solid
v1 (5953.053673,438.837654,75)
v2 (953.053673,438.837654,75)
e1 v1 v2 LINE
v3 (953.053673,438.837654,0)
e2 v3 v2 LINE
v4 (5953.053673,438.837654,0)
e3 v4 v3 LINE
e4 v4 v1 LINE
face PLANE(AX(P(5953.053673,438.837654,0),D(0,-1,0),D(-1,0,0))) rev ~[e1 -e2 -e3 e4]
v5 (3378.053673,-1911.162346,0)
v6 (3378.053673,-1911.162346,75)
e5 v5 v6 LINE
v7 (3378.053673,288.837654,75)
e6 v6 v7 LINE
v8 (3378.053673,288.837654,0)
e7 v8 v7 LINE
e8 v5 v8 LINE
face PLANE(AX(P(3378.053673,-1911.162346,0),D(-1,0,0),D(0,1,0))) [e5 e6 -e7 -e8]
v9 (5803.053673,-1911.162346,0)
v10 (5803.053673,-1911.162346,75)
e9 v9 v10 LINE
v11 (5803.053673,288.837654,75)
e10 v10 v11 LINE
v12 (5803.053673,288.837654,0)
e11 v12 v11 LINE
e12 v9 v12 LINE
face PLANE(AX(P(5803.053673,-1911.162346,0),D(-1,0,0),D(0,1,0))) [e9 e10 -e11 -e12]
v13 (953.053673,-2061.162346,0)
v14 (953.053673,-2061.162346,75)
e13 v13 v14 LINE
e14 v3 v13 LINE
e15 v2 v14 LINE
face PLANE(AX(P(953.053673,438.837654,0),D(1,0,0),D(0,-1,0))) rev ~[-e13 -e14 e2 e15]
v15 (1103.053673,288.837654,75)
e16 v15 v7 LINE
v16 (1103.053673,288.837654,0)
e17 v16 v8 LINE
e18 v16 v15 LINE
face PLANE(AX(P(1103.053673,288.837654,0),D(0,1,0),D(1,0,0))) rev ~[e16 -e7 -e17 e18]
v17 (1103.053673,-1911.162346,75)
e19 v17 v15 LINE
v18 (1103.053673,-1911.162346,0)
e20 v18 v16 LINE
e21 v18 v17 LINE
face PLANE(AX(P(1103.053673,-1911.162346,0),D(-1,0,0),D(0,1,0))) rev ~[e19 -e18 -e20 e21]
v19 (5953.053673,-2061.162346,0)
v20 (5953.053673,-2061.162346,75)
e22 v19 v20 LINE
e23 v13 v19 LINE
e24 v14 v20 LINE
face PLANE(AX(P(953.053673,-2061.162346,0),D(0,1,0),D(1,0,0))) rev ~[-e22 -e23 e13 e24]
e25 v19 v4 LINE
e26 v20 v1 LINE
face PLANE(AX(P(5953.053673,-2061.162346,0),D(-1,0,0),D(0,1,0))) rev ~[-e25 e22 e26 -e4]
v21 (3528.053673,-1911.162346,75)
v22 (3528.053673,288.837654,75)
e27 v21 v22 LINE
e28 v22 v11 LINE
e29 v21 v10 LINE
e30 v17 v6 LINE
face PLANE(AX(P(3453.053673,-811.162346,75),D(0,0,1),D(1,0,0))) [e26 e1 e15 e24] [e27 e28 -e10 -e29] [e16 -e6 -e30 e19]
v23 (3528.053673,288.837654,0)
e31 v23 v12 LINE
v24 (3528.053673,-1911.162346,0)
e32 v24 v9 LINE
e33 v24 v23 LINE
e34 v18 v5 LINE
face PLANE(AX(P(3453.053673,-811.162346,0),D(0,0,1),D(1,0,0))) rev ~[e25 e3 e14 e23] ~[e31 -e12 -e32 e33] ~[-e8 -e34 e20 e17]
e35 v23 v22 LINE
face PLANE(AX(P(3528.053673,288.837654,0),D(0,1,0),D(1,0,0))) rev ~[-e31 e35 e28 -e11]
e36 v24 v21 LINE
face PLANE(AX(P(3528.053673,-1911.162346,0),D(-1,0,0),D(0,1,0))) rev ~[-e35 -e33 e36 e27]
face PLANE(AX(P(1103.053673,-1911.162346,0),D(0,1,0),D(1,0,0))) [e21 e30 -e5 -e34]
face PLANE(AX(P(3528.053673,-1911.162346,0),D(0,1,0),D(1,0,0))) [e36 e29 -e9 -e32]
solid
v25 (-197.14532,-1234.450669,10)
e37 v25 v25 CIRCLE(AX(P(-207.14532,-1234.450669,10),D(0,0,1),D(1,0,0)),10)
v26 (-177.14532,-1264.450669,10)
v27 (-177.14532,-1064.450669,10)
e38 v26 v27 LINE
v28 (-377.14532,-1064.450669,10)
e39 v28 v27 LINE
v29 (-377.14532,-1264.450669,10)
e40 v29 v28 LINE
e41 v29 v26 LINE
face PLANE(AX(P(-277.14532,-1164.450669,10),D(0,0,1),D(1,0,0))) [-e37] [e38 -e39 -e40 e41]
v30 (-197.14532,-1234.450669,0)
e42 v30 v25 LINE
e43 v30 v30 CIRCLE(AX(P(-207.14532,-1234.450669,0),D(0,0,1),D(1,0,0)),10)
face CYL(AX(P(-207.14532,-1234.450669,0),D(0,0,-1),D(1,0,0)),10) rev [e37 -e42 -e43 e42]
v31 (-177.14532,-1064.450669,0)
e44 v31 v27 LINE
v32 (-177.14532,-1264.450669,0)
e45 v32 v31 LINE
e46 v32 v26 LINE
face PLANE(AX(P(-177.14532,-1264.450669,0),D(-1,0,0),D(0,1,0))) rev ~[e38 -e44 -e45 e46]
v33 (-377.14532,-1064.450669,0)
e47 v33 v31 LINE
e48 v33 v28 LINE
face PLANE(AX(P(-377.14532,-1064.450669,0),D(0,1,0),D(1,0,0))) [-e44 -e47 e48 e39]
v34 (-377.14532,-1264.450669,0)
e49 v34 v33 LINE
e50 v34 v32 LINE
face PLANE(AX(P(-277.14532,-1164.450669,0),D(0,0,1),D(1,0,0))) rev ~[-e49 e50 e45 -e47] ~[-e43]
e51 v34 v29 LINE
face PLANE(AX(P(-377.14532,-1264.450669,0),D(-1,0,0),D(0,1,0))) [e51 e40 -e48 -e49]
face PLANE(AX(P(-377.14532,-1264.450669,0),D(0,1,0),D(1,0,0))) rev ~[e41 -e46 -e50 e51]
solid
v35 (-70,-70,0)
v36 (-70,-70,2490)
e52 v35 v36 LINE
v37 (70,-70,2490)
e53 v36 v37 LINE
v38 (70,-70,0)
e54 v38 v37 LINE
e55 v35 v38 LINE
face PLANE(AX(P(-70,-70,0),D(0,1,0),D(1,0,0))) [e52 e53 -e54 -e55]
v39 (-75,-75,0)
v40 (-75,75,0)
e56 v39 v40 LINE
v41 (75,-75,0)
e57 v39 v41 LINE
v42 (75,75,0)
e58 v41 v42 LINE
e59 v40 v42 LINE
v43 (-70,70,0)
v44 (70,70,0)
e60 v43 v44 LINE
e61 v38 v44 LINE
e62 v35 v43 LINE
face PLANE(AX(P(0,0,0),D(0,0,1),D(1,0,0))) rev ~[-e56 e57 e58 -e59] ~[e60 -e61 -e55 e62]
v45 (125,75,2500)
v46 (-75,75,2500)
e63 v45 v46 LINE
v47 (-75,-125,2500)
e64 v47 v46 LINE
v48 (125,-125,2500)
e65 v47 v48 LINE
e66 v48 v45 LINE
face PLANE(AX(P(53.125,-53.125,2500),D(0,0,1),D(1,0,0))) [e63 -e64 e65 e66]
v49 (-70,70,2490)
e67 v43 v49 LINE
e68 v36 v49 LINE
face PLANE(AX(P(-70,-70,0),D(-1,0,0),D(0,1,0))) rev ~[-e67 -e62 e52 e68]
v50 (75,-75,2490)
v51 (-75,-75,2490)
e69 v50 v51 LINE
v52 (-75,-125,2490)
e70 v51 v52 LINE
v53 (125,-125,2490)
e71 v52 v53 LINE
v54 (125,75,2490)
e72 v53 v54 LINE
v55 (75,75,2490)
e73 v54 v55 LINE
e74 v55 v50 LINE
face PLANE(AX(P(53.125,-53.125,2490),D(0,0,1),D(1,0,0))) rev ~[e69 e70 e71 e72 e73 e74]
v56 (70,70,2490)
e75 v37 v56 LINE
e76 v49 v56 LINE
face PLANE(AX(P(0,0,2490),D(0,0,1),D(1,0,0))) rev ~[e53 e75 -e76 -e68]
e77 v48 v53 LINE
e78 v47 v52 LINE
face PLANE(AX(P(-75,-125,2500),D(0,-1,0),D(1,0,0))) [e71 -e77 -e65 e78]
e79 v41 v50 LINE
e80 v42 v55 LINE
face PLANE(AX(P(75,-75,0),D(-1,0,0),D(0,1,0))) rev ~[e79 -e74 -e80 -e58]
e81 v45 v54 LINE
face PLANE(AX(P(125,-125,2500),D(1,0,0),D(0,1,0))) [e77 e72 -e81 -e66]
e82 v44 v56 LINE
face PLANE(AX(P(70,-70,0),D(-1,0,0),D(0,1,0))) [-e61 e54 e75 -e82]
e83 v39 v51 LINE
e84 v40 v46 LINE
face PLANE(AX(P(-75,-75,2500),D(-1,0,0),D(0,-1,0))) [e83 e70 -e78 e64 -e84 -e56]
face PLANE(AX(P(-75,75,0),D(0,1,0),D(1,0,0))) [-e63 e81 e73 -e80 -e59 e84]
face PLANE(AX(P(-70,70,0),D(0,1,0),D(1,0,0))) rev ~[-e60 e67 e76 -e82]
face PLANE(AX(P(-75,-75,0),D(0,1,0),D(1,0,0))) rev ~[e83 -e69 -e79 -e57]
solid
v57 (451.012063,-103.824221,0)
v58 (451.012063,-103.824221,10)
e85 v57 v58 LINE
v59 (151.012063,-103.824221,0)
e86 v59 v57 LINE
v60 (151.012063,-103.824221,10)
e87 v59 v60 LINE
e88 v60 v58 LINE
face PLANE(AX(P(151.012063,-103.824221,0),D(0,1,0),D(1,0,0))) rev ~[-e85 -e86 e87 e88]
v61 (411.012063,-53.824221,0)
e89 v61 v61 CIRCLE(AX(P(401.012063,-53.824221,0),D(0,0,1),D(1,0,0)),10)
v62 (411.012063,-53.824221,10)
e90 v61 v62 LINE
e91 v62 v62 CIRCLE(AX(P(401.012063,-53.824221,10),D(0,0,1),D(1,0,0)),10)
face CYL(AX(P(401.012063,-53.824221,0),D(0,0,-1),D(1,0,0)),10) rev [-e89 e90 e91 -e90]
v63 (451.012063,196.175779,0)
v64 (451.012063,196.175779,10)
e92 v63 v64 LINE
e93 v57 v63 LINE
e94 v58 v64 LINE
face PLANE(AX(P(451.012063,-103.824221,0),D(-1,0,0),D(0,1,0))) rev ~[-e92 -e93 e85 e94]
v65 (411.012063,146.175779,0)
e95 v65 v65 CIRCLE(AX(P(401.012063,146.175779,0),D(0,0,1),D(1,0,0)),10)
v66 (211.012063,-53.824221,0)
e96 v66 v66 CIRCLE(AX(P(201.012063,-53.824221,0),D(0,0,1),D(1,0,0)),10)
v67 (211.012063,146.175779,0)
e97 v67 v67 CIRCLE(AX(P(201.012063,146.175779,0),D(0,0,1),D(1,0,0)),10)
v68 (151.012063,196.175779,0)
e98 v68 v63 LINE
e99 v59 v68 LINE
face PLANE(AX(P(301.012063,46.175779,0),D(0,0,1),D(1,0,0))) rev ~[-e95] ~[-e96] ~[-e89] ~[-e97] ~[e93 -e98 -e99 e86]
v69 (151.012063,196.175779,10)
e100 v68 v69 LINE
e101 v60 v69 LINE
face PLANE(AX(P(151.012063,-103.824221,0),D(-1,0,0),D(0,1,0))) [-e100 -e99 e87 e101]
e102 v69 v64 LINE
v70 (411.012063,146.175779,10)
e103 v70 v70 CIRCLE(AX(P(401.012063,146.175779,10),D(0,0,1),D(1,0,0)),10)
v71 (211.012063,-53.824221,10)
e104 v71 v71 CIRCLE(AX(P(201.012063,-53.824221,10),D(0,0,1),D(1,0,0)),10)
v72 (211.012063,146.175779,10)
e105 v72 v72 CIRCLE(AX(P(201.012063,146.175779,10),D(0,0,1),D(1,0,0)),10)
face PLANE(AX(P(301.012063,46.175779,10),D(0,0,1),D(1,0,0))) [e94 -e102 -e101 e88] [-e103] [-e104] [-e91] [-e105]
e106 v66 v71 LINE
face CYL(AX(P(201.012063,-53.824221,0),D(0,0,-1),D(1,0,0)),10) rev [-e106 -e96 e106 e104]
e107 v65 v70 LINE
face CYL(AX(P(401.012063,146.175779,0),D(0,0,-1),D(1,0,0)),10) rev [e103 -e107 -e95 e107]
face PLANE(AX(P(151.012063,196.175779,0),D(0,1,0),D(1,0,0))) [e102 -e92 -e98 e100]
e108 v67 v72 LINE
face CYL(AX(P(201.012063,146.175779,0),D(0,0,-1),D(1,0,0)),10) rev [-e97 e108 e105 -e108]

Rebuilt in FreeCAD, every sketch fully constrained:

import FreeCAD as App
import Part
import Sketcher
from FreeCAD import Vector


def add_polygon(sketch, points):
    """Adds a closed chain of lines whose ends are joined by coincident constraints."""
    first, n = sketch.GeometryCount, len(points)
    for a, b in zip(points, points[1:] + points[:1]):
        sketch.addGeometry(Part.LineSegment(App.Vector(*a, 0), App.Vector(*b, 0)), False)
    for i in range(n):
        sketch.addConstraint(Sketcher.Constraint("Coincident", first + i, 2, first + (i + 1) % n, 1))

doc = App.newDocument("Part")
body = doc.addObject("PartDesign::Body", "Body")

sketch1 = body.newObject("Sketcher::SketchObject", "Sketch")
sketch1.AttachmentSupport = (doc.getObject("XY_Plane"), [""])
sketch1.MapMode = "FlatFace"
add_polygon(sketch1, [(-75, 75), (-75, -75), (75, -75), (75, 75)])
add_polygon(sketch1, [(70, -70), (-70, -70), (-70, 70), (70, 70)])
sketch1.addConstraint([
    Sketcher.Constraint("Vertical", 0),
    Sketcher.Constraint("Horizontal", 1),
    Sketcher.Constraint("Vertical", 2),
    Sketcher.Constraint("Horizontal", 3),
    Sketcher.Constraint("Horizontal", 4),
    Sketcher.Constraint("Vertical", 5),
    Sketcher.Constraint("Horizontal", 6),
    Sketcher.Constraint("Vertical", 7),
    Sketcher.Constraint("Symmetric", 0, 2, 2, 2, -1, 1),
    Sketcher.Constraint("Symmetric", 4, 2, 6, 2, -1, 1),
    Sketcher.Constraint("Equal", 3, 0),
    Sketcher.Constraint("Equal", 6, 5),
    Sketcher.Constraint("DistanceX", 1, 1, 1, 2, 150.0),
    Sketcher.Constraint("DistanceX", 4, 2, 4, 1, 140.0),
])
pad1 = body.newObject("PartDesign::Pad", "Pad")
pad1.Profile = sketch1
pad1.Length = 2500

sketch2 = body.newObject("Sketcher::SketchObject", "Sketch001")
sketch2.AttachmentSupport = (doc.getObject("XY_Plane"), [""])
sketch2.MapMode = "FlatFace"
sketch2.AttachmentOffset = App.Placement(Vector(0, 0, 2500), App.Rotation())
add_polygon(sketch2, [(75, -75), (-75, -75), (-75, -125), (125, -125), (125, 75), (75, 75)])
add_polygon(sketch2, [(-70, 70), (-70, -70), (70, -70), (70, 70)])
sketch2.addConstraint([
    Sketcher.Constraint("Horizontal", 0),
    Sketcher.Constraint("Vertical", 1),
    Sketcher.Constraint("Horizontal", 2),
    Sketcher.Constraint("Vertical", 3),
    Sketcher.Constraint("Horizontal", 4),
    Sketcher.Constraint("Vertical", 5),
    Sketcher.Constraint("Vertical", 6),
    Sketcher.Constraint("Horizontal", 7),
    Sketcher.Constraint("Vertical", 8),
    Sketcher.Constraint("Horizontal", 9),
    Sketcher.Constraint("Symmetric", 0, 2, 4, 2, -1, 1),
    Sketcher.Constraint("Symmetric", 6, 2, 8, 2, -1, 1),
    Sketcher.Constraint("Equal", 4, 1),
    Sketcher.Constraint("Equal", 2, 3),
    Sketcher.Constraint("Equal", 9, 6),
    Sketcher.Constraint("DistanceX", 0, 2, 0, 1, 150.0),
    Sketcher.Constraint("DistanceX", 2, 1, 2, 2, 200.0),
    Sketcher.Constraint("DistanceX", 7, 1, 7, 2, 140.0),
])
pad2 = body.newObject("PartDesign::Pad", "Pad001")
pad2.Profile = sketch2
pad2.Length = 10
pad2.Reversed = True
body2 = doc.addObject("PartDesign::Body", "Body001")

sketch3 = body2.newObject("Sketcher::SketchObject", "Sketch002")
sketch3.AttachmentSupport = (doc.getObject("XY_Plane001"), [""])
sketch3.MapMode = "FlatFace"
add_polygon(sketch3, [(151, 196), (151, -104), (451, -104), (451, 196)])
sketch3.addGeometry(Part.Circle(Vector(201, -54, 0), Vector(0, 0, 1), 10), False)
sketch3.addGeometry(Part.Circle(Vector(401, -54, 0), Vector(0, 0, 1), 10), False)
sketch3.addGeometry(Part.Circle(Vector(201, 146, 0), Vector(0, 0, 1), 10), False)
sketch3.addGeometry(Part.Circle(Vector(401, 146, 0), Vector(0, 0, 1), 10), False)
sketch3.addConstraint([
    Sketcher.Constraint("Vertical", 0),
    Sketcher.Constraint("Horizontal", 1),
    Sketcher.Constraint("Vertical", 2),
    Sketcher.Constraint("Horizontal", 3),
    Sketcher.Constraint("Equal", 4, 5),
    Sketcher.Constraint("Equal", 5, 6),
    Sketcher.Constraint("Equal", 6, 7),
    Sketcher.Constraint("Horizontal", 4, 3, 5, 3),
    Sketcher.Constraint("Horizontal", 6, 3, 7, 3),
    Sketcher.Constraint("Vertical", 4, 3, 6, 3),
    Sketcher.Constraint("Vertical", 5, 3, 7, 3),
    Sketcher.Constraint("Equal", 3, 0),
    Sketcher.Constraint("Diameter", 4, 20.0),
    Sketcher.Constraint("DistanceX", 1, 1, 1, 2, 300.0),
    Sketcher.Constraint("DistanceX", 4, 3, 5, 3, 200.0),
    Sketcher.Constraint("DistanceY", 4, 3, 6, 3, 200.0),
    Sketcher.Constraint("DistanceX", 0, 2, 4, 3, 50.0),
    Sketcher.Constraint("DistanceY", 0, 2, 4, 3, 50.0),
    Sketcher.Constraint("DistanceY", 4, 3, -1, 1, 53.824221),
    Sketcher.Constraint("DistanceX", -1, 1, 4, 3, 201.012063),
])
pad3 = body2.newObject("PartDesign::Pad", "Pad002")
pad3.Profile = sketch3
pad3.Length = 10
body3 = doc.addObject("PartDesign::Body", "Body002")

sketch4 = body3.newObject("Sketcher::SketchObject", "Sketch003")
sketch4.AttachmentSupport = (doc.getObject("XY_Plane002"), [""])
sketch4.MapMode = "FlatFace"
add_polygon(sketch4, [(953, 439), (953, -2061), (5953, -2061), (5953, 439)])
add_polygon(sketch4, [(3378, -1911), (1103, -1911), (1103, 289), (3378, 289)])
add_polygon(sketch4, [(5803, -1911), (3528, -1911), (3528, 289), (5803, 289)])
sketch4.addConstraint([
    Sketcher.Constraint("Vertical", 0),
    Sketcher.Constraint("Horizontal", 1),
    Sketcher.Constraint("Vertical", 2),
    Sketcher.Constraint("Horizontal", 3),
    Sketcher.Constraint("Horizontal", 4),
    Sketcher.Constraint("Vertical", 5),
    Sketcher.Constraint("Horizontal", 6),
    Sketcher.Constraint("Vertical", 7),
    Sketcher.Constraint("Horizontal", 8),
    Sketcher.Constraint("Vertical", 9),
    Sketcher.Constraint("Horizontal", 10),
    Sketcher.Constraint("Vertical", 11),
    Sketcher.Constraint("Horizontal", 7, 2, 8, 2),
    Sketcher.Constraint("Horizontal", 6, 2, 9, 2),
    Sketcher.Constraint("Equal", 6, 8),
    Sketcher.Constraint("DistanceX", 1, 1, 1, 2, 5000.0),
    Sketcher.Constraint("DistanceX", 4, 2, 4, 1, 2275.0),
    Sketcher.Constraint("DistanceY", 0, 2, 0, 1, 2500.0),
    Sketcher.Constraint("DistanceY", 5, 1, 5, 2, 2200.0),
    Sketcher.Constraint("DistanceX", 0, 2, 4, 2, 150.0),
    Sketcher.Constraint("DistanceY", 0, 2, 4, 2, 150.0),
    Sketcher.Constraint("DistanceX", 7, 2, 8, 2, 150.0),
    Sketcher.Constraint("DistanceX", -1, 1, 0, 2, 953.053673),
    Sketcher.Constraint("DistanceY", 0, 2, -1, 1, 2061.162346),
])
pad4 = body3.newObject("PartDesign::Pad", "Pad003")
pad4.Profile = sketch4
pad4.Length = 75
body4 = doc.addObject("PartDesign::Body", "Body003")

sketch5 = body4.newObject("Sketcher::SketchObject", "Sketch004")
sketch5.AttachmentSupport = (doc.getObject("XY_Plane003"), [""])
sketch5.MapMode = "FlatFace"
add_polygon(sketch5, [(-377, -1064), (-377, -1264), (-177, -1264), (-177, -1064)])
sketch5.addGeometry(Part.Circle(Vector(-207, -1234, 0), Vector(0, 0, 1), 10), False)
sketch5.addConstraint([
    Sketcher.Constraint("Vertical", 0),
    Sketcher.Constraint("Horizontal", 1),
    Sketcher.Constraint("Vertical", 2),
    Sketcher.Constraint("Horizontal", 3),
    Sketcher.Constraint("Equal", 3, 0),
    Sketcher.Constraint("Diameter", 4, 20.0),
    Sketcher.Constraint("DistanceX", 1, 1, 1, 2, 200.0),
    Sketcher.Constraint("DistanceX", 0, 2, 4, 3, 170.0),
    Sketcher.Constraint("DistanceY", 0, 2, 4, 3, 30.0),
    Sketcher.Constraint("DistanceX", 4, 3, -1, 1, 207.14532),
    Sketcher.Constraint("DistanceY", 4, 3, -1, 1, 1234.450669),
])
pad5 = body4.newObject("PartDesign::Pad", "Pad004")
pad5.Profile = sketch5
pad5.Length = 10

doc.recompute()
